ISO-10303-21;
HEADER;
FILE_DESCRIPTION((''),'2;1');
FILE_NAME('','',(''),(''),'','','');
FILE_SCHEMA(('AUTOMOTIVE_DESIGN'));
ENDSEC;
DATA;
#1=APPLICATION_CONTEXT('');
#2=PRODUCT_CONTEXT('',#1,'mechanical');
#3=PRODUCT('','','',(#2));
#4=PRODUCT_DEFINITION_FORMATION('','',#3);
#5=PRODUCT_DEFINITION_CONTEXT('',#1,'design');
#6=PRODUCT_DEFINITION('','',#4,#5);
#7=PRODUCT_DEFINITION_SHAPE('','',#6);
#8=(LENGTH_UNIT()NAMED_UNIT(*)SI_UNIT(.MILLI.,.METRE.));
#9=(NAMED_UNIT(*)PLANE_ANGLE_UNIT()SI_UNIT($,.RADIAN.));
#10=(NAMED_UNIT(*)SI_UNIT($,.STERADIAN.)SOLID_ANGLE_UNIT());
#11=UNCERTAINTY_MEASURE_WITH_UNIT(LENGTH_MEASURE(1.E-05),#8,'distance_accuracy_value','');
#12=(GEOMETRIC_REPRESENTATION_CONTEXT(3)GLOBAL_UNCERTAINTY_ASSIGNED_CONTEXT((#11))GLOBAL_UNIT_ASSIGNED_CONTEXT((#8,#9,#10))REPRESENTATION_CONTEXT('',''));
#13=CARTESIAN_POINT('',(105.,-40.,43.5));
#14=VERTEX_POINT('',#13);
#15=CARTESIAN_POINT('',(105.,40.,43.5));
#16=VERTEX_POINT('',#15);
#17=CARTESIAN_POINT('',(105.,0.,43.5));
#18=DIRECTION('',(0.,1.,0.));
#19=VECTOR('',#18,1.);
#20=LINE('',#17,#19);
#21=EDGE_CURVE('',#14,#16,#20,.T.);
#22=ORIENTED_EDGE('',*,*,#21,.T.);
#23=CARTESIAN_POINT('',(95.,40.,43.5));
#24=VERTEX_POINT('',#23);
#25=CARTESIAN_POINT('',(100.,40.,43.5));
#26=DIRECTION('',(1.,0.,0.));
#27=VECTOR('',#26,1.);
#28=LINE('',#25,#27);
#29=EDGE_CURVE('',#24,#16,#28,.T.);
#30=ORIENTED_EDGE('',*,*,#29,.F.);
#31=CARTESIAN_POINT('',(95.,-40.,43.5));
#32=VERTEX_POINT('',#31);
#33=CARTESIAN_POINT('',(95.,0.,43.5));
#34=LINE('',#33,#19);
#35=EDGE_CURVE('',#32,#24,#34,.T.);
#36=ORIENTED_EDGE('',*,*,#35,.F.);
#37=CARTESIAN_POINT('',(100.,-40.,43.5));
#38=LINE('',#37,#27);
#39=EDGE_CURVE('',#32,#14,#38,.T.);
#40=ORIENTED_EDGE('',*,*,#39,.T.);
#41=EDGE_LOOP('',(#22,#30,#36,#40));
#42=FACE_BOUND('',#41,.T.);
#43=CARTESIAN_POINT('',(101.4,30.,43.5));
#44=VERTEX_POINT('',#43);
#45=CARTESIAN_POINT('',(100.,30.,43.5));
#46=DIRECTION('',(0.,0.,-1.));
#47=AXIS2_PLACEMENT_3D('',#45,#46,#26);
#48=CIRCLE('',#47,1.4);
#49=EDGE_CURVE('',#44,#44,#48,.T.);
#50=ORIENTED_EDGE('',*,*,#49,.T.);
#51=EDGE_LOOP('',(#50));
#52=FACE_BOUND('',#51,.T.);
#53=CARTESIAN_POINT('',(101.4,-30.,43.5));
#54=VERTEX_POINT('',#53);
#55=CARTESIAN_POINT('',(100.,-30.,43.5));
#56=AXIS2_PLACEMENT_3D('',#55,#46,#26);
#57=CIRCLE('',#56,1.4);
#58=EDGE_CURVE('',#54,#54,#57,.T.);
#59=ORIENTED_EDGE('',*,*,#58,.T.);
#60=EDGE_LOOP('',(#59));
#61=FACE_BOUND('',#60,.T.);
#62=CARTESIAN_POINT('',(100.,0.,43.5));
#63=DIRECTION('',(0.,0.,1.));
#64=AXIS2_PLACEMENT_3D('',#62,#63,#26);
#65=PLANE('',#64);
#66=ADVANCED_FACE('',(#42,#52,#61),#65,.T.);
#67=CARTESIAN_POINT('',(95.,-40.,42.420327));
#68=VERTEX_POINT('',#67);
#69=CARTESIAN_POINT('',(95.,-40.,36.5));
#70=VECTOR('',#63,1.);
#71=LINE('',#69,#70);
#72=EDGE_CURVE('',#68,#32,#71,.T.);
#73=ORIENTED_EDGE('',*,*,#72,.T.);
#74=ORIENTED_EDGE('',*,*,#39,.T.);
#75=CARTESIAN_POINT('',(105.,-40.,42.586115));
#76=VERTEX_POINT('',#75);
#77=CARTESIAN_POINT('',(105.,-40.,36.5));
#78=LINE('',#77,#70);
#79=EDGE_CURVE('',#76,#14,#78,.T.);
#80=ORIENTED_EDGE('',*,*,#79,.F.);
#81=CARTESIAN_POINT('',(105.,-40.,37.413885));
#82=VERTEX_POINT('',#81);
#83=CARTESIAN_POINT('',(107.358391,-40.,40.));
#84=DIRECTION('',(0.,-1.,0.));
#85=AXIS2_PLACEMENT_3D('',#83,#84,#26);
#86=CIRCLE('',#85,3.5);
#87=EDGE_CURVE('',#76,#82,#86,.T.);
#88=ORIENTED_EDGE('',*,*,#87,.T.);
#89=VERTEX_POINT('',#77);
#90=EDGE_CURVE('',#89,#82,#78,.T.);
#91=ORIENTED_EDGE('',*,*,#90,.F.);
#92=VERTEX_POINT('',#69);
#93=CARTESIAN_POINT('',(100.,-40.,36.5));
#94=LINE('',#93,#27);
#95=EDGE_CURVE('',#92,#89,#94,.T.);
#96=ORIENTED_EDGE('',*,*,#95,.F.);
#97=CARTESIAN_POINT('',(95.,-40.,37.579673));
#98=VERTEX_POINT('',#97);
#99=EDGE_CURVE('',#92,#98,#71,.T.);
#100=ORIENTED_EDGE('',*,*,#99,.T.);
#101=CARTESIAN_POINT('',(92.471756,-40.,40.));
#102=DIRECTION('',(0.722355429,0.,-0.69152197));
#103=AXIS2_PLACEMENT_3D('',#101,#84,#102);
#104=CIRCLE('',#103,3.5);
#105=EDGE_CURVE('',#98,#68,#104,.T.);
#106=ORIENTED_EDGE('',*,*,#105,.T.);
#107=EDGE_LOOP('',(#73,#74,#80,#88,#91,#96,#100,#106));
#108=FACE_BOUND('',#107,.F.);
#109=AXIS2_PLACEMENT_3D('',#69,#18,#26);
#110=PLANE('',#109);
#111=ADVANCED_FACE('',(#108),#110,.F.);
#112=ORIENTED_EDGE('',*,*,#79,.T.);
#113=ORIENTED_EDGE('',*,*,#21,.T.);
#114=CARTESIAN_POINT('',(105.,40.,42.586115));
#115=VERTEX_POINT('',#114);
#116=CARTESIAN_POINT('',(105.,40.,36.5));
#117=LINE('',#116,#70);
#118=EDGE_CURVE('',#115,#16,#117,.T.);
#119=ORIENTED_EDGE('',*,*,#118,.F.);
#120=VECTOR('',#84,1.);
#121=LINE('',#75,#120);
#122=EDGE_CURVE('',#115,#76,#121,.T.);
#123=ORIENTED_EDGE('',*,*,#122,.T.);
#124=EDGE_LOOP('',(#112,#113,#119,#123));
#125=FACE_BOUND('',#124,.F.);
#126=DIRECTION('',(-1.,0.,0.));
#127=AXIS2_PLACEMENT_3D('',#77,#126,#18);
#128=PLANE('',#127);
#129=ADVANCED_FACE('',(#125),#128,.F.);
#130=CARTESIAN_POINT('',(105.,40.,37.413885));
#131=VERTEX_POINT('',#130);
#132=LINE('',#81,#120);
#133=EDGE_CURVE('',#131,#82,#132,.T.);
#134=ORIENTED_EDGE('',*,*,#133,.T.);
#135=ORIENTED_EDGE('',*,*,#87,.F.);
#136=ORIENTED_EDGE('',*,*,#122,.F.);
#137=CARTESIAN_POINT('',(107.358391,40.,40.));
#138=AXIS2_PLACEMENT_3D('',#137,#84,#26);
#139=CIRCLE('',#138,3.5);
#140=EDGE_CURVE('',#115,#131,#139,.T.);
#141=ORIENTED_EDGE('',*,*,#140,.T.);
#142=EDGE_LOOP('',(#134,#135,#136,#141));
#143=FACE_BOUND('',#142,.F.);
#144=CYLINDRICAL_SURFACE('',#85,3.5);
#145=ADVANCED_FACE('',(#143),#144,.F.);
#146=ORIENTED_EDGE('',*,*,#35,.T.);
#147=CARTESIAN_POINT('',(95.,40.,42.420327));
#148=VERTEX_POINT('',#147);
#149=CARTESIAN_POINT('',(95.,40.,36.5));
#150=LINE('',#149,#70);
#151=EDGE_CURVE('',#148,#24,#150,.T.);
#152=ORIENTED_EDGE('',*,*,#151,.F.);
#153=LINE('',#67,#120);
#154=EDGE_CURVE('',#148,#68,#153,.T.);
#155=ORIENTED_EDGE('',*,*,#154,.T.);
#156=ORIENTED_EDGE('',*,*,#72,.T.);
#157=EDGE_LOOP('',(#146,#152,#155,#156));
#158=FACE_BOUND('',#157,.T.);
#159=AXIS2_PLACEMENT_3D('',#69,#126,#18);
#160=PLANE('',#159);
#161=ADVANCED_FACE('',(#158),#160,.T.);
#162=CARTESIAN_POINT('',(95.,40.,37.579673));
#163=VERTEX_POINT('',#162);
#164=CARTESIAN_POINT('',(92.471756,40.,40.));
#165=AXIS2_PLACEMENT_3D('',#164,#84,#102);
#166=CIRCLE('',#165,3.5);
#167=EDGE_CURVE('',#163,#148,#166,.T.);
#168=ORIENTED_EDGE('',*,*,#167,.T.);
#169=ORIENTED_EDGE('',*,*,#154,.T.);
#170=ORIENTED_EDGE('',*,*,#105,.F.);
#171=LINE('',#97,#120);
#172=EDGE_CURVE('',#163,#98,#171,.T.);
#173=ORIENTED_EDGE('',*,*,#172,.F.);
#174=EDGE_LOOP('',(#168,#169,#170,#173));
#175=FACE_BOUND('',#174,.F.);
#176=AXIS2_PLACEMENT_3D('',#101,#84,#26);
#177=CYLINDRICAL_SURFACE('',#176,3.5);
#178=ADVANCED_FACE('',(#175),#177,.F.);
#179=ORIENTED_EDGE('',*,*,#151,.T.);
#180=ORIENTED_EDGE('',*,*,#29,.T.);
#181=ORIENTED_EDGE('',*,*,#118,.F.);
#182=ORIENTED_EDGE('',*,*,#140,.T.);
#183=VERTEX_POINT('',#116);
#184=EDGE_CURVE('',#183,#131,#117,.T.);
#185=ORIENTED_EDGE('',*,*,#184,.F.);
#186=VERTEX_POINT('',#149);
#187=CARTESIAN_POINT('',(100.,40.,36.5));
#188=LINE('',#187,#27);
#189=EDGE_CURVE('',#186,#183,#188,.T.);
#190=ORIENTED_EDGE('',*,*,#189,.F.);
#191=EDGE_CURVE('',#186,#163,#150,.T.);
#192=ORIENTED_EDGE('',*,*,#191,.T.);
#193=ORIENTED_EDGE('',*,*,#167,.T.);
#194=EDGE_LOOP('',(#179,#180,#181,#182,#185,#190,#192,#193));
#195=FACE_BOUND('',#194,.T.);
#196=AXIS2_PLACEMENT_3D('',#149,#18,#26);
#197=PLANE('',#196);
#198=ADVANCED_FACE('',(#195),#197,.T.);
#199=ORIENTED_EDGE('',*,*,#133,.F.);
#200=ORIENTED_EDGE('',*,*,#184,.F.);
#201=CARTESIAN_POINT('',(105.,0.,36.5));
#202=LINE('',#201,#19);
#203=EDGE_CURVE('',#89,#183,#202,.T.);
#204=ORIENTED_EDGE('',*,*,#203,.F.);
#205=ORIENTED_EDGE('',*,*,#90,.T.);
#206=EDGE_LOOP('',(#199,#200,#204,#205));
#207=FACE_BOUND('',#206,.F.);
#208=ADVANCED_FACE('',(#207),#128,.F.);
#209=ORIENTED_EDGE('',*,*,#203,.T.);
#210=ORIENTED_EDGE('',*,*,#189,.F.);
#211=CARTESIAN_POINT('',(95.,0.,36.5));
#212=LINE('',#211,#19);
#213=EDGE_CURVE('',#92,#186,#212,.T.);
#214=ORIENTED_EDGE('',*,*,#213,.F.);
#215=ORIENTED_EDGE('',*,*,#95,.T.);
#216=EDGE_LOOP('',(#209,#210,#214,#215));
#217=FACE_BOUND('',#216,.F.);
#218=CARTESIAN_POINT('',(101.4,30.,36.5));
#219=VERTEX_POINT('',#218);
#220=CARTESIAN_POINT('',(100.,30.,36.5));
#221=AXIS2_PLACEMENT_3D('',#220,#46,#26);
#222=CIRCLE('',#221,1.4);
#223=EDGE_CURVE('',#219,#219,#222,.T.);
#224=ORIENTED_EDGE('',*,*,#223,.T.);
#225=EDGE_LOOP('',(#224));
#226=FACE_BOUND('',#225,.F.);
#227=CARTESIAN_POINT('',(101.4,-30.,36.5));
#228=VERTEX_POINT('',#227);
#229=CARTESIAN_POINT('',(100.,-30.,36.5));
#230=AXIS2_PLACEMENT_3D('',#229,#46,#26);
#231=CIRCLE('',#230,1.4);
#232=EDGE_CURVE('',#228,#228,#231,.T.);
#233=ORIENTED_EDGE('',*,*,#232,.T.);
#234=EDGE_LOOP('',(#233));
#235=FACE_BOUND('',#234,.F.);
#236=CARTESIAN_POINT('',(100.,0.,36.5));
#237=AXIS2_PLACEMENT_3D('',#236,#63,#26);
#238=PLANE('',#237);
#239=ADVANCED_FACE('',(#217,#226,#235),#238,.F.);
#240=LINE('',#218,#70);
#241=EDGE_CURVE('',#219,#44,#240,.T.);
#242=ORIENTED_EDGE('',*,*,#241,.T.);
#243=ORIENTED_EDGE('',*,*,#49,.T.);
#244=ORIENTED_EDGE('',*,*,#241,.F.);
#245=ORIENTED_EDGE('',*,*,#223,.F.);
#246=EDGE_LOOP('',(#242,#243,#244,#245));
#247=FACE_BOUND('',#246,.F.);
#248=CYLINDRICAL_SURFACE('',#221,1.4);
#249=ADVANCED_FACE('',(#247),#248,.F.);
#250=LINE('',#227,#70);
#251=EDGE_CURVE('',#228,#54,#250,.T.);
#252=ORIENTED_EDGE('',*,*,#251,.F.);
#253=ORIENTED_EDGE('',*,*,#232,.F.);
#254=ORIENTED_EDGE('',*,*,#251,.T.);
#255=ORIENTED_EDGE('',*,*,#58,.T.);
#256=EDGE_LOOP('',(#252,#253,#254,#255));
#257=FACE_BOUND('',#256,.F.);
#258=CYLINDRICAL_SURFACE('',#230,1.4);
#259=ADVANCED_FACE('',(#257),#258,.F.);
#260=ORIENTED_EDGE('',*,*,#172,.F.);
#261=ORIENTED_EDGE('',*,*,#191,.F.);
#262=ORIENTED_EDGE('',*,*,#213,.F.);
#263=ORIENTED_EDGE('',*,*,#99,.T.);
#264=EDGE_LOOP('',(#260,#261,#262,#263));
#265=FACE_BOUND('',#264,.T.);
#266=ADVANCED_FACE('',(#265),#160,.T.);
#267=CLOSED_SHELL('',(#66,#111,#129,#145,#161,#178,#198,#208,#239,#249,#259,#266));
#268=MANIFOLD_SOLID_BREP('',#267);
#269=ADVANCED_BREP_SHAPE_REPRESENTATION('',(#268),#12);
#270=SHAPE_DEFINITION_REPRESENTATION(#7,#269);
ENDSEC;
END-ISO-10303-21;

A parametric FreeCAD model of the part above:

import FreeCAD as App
import Part
import Sketcher


def add_polygon(sketch, points):
    """Adds a closed chain of lines whose ends are joined by coincident constraints."""
    first, n = sketch.GeometryCount, len(points)
    for a, b in zip(points, points[1:] + points[:1]):
        sketch.addGeometry(Part.LineSegment(App.Vector(*a, 0), App.Vector(*b, 0)), False)
    for i in range(n):
        sketch.addConstraint(Sketcher.Constraint("Coincident", first + i, 2, first + (i + 1) % n, 1))

doc = App.newDocument("Part")
params = doc.addObject("Spreadsheet::Sheet", "Params")
for row, (alias, value) in enumerate([
    ("sketch1_width", "10 mm"),
    ("sketch1_height", "80 mm"),
    ("pad1_length", "7 mm"),
    ("sketch2_diameter", "2.8 mm"),
    ("pocket1_length", "8 mm"),
    ("sketch3_diameter", "7 mm"),
], start=1):
    params.set(f"A{row}", alias)
    params.set(f"B{row}", "=" + value)
    params.setAlias(f"B{row}", alias)

body = doc.addObject("PartDesign::Body", "Body")

sketch1 = body.newObject("Sketcher::SketchObject", "Sketch")
sketch1.AttachmentSupport = (doc.getObject("XY_Plane"), [""])
sketch1.MapMode = "FlatFace"
add_polygon(sketch1, [(95, 40), (95, -40), (105, -40), (105, 40)])
sketch1.addConstraint([
    Sketcher.Constraint("Vertical", 0),
    Sketcher.Constraint("Horizontal", 1),
    Sketcher.Constraint("Vertical", 2),
    Sketcher.Constraint("Horizontal", 3),
    Sketcher.Constraint("DistanceX", 1, 1, 1, 2, 10.0),
    Sketcher.Constraint("DistanceY", 0, 2, 0, 1, 80.0),
    Sketcher.Constraint("DistanceX", -1, 1, 0, 2, 95.0),
    Sketcher.Constraint("DistanceY", 0, 2, -1, 1, 40.0),
])
sketch1.setExpression("Constraints[8]", "Params.sketch1_width")
sketch1.setExpression("Constraints[9]", "Params.sketch1_height")
pad1 = body.newObject("PartDesign::Pad", "Pad")
pad1.Profile = sketch1
pad1.setExpression("Length", "Params.pad1_length")

sketch2 = body.newObject("Sketcher::SketchObject", "Sketch001")
sketch2.AttachmentSupport = (doc.getObject("XY_Plane"), [""])
sketch2.MapMode = "FlatFace"
sketch2.addGeometry([
    Part.Circle(App.Vector(100, -30, 0), App.Vector(0, 0, 1), 1.4),
    Part.Circle(App.Vector(100, 30, 0), App.Vector(0, 0, 1), 1.4),
], False)
sketch2.addConstraint([
    Sketcher.Constraint("Equal", 0, 1),
    Sketcher.Constraint("Symmetric", 0, 3, 1, 3, -1),
    Sketcher.Constraint("Diameter", 0, 2.8),
    Sketcher.Constraint("DistanceX", -1, 1, 0, 3, 100.0),
    Sketcher.Constraint("DistanceY", 0, 3, -1, 1, 30.0),
])
sketch2.setExpression("Constraints[2]", "Params.sketch2_diameter")
pocket1 = body.newObject("PartDesign::Pocket", "Pocket")
pocket1.Profile = sketch2
pocket1.setExpression("Length", "Params.pocket1_length")
pocket1.Reversed = True

sketch3 = body.newObject("Sketcher::SketchObject", "Sketch002")
sketch3.AttachmentSupport = (doc.getObject("XZ_Plane"), [""])
sketch3.MapMode = "FlatFace"
sketch3.AttachmentOffset = App.Placement(App.Vector(0, 0, 40), App.Rotation())
sketch3.addGeometry([
    Part.Circle(App.Vector(107.4, 3.5, 0), App.Vector(0, 0, 1), 3.5),
    Part.Circle(App.Vector(92.5, 3.5, 0), App.Vector(0, 0, 1), 3.5),
], False)
sketch3.addConstraint([
    Sketcher.Constraint("Equal", 0, 1),
    Sketcher.Constraint("Horizontal", 0, 3, 1, 3),
    Sketcher.Constraint("Diameter", 0, 7.0),
    Sketcher.Constraint("DistanceY", -1, 1, 0, 3, 3.5),
    Sketcher.Constraint("DistanceX", -1, 1, 0, 3, 107.358391),
    Sketcher.Constraint("DistanceX", -1, 1, 1, 3, 92.471756),
])
sketch3.setExpression("Constraints[2]", "Params.sketch3_diameter")
pocket2 = body.newObject("PartDesign::Pocket", "Pocket001")
pocket2.Profile = sketch3
pocket2.Type = "ThroughAll"
body2 = doc.addObject("PartDesign::Body", "Body001")
doc.recompute()

body.Placement = App.Placement(App.Vector(0, 0, 36.5), App.Rotation(App.Vector(0, 0, 1), 0))
boolean = body2.newObject("PartDesign::Boolean", "Boolean")
boolean.Type = "Fuse"
boolean.addObjects([body])

doc.recompute()
